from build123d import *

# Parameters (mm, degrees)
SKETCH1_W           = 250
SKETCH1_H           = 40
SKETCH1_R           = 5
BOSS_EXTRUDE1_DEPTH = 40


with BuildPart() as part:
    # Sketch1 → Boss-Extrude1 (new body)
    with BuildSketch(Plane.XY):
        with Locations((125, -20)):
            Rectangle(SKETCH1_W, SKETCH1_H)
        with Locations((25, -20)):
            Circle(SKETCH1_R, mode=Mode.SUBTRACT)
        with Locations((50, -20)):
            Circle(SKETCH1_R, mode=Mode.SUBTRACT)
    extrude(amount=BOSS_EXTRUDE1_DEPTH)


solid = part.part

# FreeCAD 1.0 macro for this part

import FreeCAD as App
import Part
import Sketcher
Q = App.Units.Quantity

doc = App.newDocument("Part")
body = doc.addObject("PartDesign::Body", "Body")

# Sketch on XY plane
sketch1 = body.newObject("Sketcher::SketchObject", "Sketch")
sketch1.AttachmentSupport = (doc.getObject("XY_Plane"), [""])
sketch1.MapMode = "FlatFace"
sketch1.addGeometry(Part.LineSegment(App.Vector(0, 0, 0), App.Vector(0, -40, 0)), False)
sketch1.addGeometry(Part.LineSegment(App.Vector(0, -40, 0), App.Vector(250, -40, 0)), False)
sketch1.addGeometry(Part.LineSegment(App.Vector(250, -40, 0), App.Vector(250, 0, 0)), False)
sketch1.addGeometry(Part.LineSegment(App.Vector(250, 0, 0), App.Vector(0, 0, 0)), False)
sketch1.addGeometry(Part.Circle(App.Vector(25, -20, 0), App.Vector(0, 0, 1), 5), False)
sketch1.addGeometry(Part.Circle(App.Vector(50, -20, 0), App.Vector(0, 0, 1), 5), False)
sketch1.addConstraint(Sketcher.Constraint("Coincident", 0, 2, 1, 1))
sketch1.addConstraint(Sketcher.Constraint("Coincident", 1, 2, 2, 1))
sketch1.addConstraint(Sketcher.Constraint("Coincident", 2, 2, 3, 1))
sketch1.addConstraint(Sketcher.Constraint("Coincident", 3, 2, 0, 1))
sketch1.addConstraint(Sketcher.Constraint("Vertical", 0))
sketch1.addConstraint(Sketcher.Constraint("Horizontal", 1))
sketch1.addConstraint(Sketcher.Constraint("Vertical", 2))
sketch1.addConstraint(Sketcher.Constraint("Horizontal", 3))
sketch1.addConstraint(Sketcher.Constraint("Coincident", 3, 2, -1, 1))
sketch1.addConstraint(Sketcher.Constraint("Equal", 4, 5))
sketch1.addConstraint(Sketcher.Constraint("Horizontal", 4, 3, 5, 3))
sketch1.addConstraint(Sketcher.Constraint("Diameter", 4, Q("10 mm")))
sketch1.addConstraint(Sketcher.Constraint("DistanceX", 1, 1, 1, 2, Q("250 mm")))
sketch1.addConstraint(Sketcher.Constraint("DistanceY", 0, 2, 0, 1, Q("40 mm")))
sketch1.addConstraint(Sketcher.Constraint("DistanceX", -1, 1, 4, 3, Q("25 mm")))
sketch1.addConstraint(Sketcher.Constraint("DistanceY", 4, 3, -1, 1, Q("20 mm")))
sketch1.addConstraint(Sketcher.Constraint("DistanceX", -1, 1, 5, 3, Q("50 mm")))
pad1 = body.newObject("PartDesign::Pad", "Pad")
pad1.Profile = sketch1
pad1.Length = 40

doc.recompute()
